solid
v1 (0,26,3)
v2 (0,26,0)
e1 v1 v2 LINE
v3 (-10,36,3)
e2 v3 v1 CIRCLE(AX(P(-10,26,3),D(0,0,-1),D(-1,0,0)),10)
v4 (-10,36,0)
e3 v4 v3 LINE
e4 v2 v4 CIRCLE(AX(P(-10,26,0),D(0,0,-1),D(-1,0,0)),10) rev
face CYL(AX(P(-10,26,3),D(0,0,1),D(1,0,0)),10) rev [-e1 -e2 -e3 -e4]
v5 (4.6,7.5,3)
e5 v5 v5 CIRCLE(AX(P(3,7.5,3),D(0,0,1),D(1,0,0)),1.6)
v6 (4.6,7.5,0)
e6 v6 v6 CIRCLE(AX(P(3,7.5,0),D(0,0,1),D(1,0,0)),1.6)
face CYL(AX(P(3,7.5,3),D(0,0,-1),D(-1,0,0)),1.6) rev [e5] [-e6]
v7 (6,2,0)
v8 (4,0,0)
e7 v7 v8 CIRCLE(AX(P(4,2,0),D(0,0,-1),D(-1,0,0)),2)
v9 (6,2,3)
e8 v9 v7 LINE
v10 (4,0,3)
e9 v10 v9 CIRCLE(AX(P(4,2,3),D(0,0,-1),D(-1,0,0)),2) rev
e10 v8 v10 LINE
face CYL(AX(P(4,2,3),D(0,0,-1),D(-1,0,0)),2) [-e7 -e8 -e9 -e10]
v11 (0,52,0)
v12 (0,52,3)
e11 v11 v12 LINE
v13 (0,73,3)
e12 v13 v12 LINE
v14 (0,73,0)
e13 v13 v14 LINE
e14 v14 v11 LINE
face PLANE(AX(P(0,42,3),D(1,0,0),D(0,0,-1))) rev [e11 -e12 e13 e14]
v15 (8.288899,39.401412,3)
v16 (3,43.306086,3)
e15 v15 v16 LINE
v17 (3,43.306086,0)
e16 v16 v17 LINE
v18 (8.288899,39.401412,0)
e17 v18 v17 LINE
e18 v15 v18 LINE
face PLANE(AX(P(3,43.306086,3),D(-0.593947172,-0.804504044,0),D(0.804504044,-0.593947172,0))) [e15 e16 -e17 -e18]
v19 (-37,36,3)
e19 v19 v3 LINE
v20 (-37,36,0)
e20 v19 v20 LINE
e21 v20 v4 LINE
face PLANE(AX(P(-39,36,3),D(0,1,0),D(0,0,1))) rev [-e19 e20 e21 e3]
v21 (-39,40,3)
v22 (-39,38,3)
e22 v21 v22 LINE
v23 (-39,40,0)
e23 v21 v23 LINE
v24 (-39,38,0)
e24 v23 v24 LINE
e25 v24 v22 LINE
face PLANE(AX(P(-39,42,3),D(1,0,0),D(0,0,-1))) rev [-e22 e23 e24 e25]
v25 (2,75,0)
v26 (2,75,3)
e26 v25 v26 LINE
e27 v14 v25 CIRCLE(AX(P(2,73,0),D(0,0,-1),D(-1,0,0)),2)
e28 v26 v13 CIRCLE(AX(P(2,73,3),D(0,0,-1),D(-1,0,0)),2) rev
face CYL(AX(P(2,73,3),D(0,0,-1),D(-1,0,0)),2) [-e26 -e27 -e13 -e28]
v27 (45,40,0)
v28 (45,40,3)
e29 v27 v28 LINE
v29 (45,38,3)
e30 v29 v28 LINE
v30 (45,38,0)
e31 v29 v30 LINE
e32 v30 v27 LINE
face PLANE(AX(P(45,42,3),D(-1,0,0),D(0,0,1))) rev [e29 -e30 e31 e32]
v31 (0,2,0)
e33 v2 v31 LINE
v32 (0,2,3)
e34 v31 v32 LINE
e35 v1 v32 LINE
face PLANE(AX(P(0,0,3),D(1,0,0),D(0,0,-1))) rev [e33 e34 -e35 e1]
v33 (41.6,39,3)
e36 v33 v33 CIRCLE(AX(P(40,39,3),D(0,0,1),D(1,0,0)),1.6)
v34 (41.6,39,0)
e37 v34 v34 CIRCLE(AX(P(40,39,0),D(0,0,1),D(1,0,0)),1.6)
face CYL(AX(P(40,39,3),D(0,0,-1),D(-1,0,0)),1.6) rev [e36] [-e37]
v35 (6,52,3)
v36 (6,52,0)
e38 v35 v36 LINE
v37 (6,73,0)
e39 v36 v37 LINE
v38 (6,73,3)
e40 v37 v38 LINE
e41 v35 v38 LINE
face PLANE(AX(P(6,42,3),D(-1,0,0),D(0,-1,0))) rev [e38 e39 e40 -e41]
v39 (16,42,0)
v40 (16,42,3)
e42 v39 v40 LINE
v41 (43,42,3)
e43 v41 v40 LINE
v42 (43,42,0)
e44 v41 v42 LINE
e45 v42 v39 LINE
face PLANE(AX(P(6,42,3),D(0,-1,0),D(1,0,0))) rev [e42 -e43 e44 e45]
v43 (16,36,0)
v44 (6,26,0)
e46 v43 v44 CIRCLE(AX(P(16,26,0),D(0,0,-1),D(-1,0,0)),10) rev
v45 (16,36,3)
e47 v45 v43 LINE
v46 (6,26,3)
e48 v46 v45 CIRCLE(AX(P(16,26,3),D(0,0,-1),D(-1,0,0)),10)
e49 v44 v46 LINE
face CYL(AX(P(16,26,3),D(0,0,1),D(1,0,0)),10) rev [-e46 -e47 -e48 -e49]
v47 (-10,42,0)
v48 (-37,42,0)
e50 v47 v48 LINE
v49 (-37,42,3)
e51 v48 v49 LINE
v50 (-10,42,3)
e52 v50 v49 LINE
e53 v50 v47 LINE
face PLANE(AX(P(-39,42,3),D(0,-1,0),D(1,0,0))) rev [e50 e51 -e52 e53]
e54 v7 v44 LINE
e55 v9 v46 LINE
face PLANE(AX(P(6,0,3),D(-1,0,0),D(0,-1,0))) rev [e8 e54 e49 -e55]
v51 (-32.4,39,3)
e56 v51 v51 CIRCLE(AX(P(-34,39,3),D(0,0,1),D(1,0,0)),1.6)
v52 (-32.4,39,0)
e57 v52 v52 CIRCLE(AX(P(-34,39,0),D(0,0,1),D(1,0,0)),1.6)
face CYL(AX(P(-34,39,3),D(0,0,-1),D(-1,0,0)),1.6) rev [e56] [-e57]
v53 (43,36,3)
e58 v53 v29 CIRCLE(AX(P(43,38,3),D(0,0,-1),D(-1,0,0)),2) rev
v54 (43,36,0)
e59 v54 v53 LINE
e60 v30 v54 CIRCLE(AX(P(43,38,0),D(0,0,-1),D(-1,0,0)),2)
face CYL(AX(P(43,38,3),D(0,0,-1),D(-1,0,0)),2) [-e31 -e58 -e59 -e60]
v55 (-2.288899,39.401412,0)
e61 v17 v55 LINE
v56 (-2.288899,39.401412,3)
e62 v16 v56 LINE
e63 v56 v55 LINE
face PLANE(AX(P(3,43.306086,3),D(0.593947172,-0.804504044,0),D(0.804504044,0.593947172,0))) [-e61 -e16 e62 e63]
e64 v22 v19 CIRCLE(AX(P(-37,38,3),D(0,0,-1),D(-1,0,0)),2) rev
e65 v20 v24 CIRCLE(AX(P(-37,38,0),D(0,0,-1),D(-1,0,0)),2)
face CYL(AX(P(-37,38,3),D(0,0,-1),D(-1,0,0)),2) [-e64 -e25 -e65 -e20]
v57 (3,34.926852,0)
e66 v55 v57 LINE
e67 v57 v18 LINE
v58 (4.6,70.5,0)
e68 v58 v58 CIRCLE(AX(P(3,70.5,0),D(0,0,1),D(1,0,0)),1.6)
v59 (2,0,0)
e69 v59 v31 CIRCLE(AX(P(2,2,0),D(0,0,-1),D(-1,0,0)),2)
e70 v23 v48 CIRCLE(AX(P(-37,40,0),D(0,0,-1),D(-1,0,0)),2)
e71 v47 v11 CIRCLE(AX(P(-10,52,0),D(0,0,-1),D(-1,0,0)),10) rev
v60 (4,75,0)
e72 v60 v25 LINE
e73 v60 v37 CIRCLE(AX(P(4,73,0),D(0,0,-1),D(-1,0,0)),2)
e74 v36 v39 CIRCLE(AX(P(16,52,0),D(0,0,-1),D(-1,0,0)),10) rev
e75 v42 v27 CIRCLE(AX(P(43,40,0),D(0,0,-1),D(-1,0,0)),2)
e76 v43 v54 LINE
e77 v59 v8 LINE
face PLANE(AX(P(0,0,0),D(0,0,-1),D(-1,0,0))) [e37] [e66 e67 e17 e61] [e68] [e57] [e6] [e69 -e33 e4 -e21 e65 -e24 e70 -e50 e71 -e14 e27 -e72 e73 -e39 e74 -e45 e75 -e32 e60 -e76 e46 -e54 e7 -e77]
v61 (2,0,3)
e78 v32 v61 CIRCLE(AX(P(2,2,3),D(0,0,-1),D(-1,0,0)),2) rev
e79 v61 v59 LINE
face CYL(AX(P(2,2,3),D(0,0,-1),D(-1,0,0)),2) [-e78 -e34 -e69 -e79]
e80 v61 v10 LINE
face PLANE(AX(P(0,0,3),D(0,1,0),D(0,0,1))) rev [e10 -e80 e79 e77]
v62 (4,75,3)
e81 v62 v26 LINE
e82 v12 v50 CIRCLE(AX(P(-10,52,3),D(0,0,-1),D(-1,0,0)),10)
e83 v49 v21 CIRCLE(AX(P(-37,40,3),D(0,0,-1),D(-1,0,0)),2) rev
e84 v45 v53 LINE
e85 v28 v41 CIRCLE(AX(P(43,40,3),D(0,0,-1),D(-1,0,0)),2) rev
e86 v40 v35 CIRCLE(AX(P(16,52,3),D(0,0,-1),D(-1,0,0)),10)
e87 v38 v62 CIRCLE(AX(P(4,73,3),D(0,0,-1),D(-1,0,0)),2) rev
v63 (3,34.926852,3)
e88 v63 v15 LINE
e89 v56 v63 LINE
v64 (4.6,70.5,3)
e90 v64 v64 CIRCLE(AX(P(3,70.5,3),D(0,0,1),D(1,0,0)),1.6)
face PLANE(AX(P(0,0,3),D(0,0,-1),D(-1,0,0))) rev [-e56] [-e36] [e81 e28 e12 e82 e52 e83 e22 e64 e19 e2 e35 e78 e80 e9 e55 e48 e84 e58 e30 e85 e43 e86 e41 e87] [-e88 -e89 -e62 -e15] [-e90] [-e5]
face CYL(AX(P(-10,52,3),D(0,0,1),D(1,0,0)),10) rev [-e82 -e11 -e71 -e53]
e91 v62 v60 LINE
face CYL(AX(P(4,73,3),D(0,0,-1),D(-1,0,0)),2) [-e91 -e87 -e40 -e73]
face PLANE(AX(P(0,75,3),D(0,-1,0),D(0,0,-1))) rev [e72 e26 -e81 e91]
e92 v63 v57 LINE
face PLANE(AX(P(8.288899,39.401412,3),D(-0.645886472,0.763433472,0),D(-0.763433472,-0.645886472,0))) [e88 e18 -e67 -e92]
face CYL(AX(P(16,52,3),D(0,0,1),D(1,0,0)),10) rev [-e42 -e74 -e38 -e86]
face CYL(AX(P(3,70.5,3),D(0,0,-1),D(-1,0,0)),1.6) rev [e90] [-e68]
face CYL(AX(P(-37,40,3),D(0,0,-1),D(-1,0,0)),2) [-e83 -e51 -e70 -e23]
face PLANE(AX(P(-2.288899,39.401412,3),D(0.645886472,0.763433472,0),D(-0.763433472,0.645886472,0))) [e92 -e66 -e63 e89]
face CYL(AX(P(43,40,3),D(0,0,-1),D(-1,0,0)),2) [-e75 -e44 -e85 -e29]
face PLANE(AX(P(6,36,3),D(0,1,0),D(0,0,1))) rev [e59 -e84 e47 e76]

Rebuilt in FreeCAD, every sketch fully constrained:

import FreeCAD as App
import Part
import Sketcher


def edges_at(feature, points):
    """Names of the edges that pass closest to the given points."""
    edges = feature.Shape.Edges
    near = lambda p: min(range(len(edges)), key=lambda i: edges[i].distToShape(Part.Vertex(*p))[0])
    return sorted({f"Edge{near(p) + 1}" for p in points})


def add_polygon(sketch, points):
    """Adds a closed chain of lines whose ends are joined by coincident constraints."""
    first, n = sketch.GeometryCount, len(points)
    for a, b in zip(points, points[1:] + points[:1]):
        sketch.addGeometry(Part.LineSegment(App.Vector(*a, 0), App.Vector(*b, 0)), False)
    for i in range(n):
        sketch.addConstraint(Sketcher.Constraint("Coincident", first + i, 2, first + (i + 1) % n, 1))

doc = App.newDocument("Part")
body = doc.addObject("PartDesign::Body", "Body")

sketch1 = doc.addObject("Sketcher::SketchObject", "Sketch")
body.addObject(sketch1)
sketch1.AttachmentSupport = (doc.XY_Plane, [""])
sketch1.MapMode = "FlatFace"
add_polygon(sketch1, [(0, 0), (6, 0), (6, 36), (45, 36), (45, 42), (6, 42), (6, 75), (0, 75), (0, 42), (-39, 42), (-39, 36), (0, 36)])
sketch1.addGeometry(Part.Circle(App.Vector(3, 7.5, 0), App.Vector(0, 0, 1), 1.6), False)
sketch1.addGeometry(Part.Circle(App.Vector(-34, 39, 0), App.Vector(0, 0, 1), 1.6), False)
add_polygon(sketch1, [(-2.3, 39.4), (3, 43.3), (8.3, 39.4), (3, 34.9)])
sketch1.addGeometry(Part.Circle(App.Vector(40, 39, 0), App.Vector(0, 0, 1), 1.6), False)
sketch1.addGeometry(Part.Circle(App.Vector(3, 70.5, 0), App.Vector(0, 0, 1), 1.6), False)
sketch1.addConstraint(Sketcher.Constraint("Horizontal", 0))
sketch1.addConstraint(Sketcher.Constraint("Vertical", 1))
sketch1.addConstraint(Sketcher.Constraint("Horizontal", 2))
sketch1.addConstraint(Sketcher.Constraint("Vertical", 3))
sketch1.addConstraint(Sketcher.Constraint("Horizontal", 4))
sketch1.addConstraint(Sketcher.Constraint("Vertical", 5))
sketch1.addConstraint(Sketcher.Constraint("Horizontal", 6))
sketch1.addConstraint(Sketcher.Constraint("Vertical", 7))
sketch1.addConstraint(Sketcher.Constraint("Horizontal", 8))
sketch1.addConstraint(Sketcher.Constraint("Vertical", 9))
sketch1.addConstraint(Sketcher.Constraint("Horizontal", 10))
sketch1.addConstraint(Sketcher.Constraint("Vertical", 11))
sketch1.addConstraint(Sketcher.Constraint("Coincident", 11, 2, -1, 1))
sketch1.addConstraint(Sketcher.Constraint("Equal", 12, 13))
sketch1.addConstraint(Sketcher.Constraint("Equal", 13, 18))
sketch1.addConstraint(Sketcher.Constraint("Equal", 18, 19))
sketch1.addConstraint(Sketcher.Constraint("PointOnObject", 6, 2, -2))
sketch1.addConstraint(Sketcher.Constraint("Horizontal", 13, 3, 18, 3))
sketch1.addConstraint(Sketcher.Constraint("Horizontal", 4, 2, 7, 2))
sketch1.addConstraint(Sketcher.Constraint("Horizontal", 2, 2, 9, 2))
sketch1.addConstraint(Sketcher.Constraint("Horizontal", 15, 2, 17, 2))
sketch1.addConstraint(Sketcher.Constraint("Vertical", 12, 3, 19, 3))
sketch1.addConstraint(Sketcher.Constraint("Vertical", 1, 2, 4, 2))
sketch1.addConstraint(Sketcher.Constraint("Vertical", 19, 3, 14, 2))
sketch1.addConstraint(Sketcher.Constraint("Vertical", 14, 2, 16, 2))
sketch1.addConstraint(Sketcher.Constraint("Equal", 4, 8))
sketch1.addConstraint(Sketcher.Constraint("Equal", 6, 3))
sketch1.addConstraint(Sketcher.Constraint("Equal", 14, 15))
sketch1.addConstraint(Sketcher.Constraint("Diameter", 12, 3.2))
sketch1.addConstraint(Sketcher.Constraint("DistanceX", 0, 1, 0, 2, 6.0))
sketch1.addConstraint(Sketcher.Constraint("DistanceX", 2, 1, 2, 2, 39.0))
sketch1.addConstraint(Sketcher.Constraint("DistanceY", 1, 1, 1, 2, 36.0))
sketch1.addConstraint(Sketcher.Constraint("DistanceY", 5, 1, 5, 2, 33.0))
sketch1.addConstraint(Sketcher.Constraint("DistanceX", -1, 1, 12, 3, 3.0))
sketch1.addConstraint(Sketcher.Constraint("DistanceX", 13, 3, -1, 1, 34.0))
sketch1.addConstraint(Sketcher.Constraint("DistanceY", -1, 1, 13, 3, 39.0))
sketch1.addConstraint(Sketcher.Constraint("DistanceX", -1, 1, 18, 3, 40.0))
sketch1.addConstraint(Sketcher.Constraint("DistanceY", 12, 3, 19, 3, 63.0))
sketch1.addConstraint(Sketcher.Constraint("DistanceY", -1, 1, 12, 3, 7.5))
sketch1.addConstraint(Sketcher.Constraint("DistanceX", -1, 1, 15, 2, 8.288899))
sketch1.addConstraint(Sketcher.Constraint("Distance", 14, 6.574111))
sketch1.addConstraint(Sketcher.Constraint("Distance", 16, 6.92778))
sketch1.addConstraint(Sketcher.Constraint("DistanceY", -1, 1, 15, 2, 39.401412))
pad1 = doc.addObject("PartDesign::Pad", "Pad")
body.addObject(pad1)
pad1.Profile = sketch1
pad1.Length = 3
doc.recompute()

fillet = doc.addObject("PartDesign::Fillet", "Fillet")
body.addObject(fillet)
fillet.Base = (pad1, edges_at(pad1, [
    (-39, 36, 1.5),
    (-39, 42, 1.5),
    (0, 75, 1.5),
    (6, 75, 1.5),
    (45, 42, 1.5),
    (45, 36, 1.5),
    (6, 0, 1.5),
    (0, 0, 1.5),
]))
fillet.Radius = 2
doc.recompute()

fillet2 = doc.addObject("PartDesign::Fillet", "Fillet001")
body.addObject(fillet2)
fillet2.Base = (fillet, edges_at(fillet, [
    (0, 36, 1.5),
    (0, 42, 1.5),
    (6, 42, 1.5),
    (6, 36, 1.5),
]))
fillet2.Radius = 10

doc.recompute()
